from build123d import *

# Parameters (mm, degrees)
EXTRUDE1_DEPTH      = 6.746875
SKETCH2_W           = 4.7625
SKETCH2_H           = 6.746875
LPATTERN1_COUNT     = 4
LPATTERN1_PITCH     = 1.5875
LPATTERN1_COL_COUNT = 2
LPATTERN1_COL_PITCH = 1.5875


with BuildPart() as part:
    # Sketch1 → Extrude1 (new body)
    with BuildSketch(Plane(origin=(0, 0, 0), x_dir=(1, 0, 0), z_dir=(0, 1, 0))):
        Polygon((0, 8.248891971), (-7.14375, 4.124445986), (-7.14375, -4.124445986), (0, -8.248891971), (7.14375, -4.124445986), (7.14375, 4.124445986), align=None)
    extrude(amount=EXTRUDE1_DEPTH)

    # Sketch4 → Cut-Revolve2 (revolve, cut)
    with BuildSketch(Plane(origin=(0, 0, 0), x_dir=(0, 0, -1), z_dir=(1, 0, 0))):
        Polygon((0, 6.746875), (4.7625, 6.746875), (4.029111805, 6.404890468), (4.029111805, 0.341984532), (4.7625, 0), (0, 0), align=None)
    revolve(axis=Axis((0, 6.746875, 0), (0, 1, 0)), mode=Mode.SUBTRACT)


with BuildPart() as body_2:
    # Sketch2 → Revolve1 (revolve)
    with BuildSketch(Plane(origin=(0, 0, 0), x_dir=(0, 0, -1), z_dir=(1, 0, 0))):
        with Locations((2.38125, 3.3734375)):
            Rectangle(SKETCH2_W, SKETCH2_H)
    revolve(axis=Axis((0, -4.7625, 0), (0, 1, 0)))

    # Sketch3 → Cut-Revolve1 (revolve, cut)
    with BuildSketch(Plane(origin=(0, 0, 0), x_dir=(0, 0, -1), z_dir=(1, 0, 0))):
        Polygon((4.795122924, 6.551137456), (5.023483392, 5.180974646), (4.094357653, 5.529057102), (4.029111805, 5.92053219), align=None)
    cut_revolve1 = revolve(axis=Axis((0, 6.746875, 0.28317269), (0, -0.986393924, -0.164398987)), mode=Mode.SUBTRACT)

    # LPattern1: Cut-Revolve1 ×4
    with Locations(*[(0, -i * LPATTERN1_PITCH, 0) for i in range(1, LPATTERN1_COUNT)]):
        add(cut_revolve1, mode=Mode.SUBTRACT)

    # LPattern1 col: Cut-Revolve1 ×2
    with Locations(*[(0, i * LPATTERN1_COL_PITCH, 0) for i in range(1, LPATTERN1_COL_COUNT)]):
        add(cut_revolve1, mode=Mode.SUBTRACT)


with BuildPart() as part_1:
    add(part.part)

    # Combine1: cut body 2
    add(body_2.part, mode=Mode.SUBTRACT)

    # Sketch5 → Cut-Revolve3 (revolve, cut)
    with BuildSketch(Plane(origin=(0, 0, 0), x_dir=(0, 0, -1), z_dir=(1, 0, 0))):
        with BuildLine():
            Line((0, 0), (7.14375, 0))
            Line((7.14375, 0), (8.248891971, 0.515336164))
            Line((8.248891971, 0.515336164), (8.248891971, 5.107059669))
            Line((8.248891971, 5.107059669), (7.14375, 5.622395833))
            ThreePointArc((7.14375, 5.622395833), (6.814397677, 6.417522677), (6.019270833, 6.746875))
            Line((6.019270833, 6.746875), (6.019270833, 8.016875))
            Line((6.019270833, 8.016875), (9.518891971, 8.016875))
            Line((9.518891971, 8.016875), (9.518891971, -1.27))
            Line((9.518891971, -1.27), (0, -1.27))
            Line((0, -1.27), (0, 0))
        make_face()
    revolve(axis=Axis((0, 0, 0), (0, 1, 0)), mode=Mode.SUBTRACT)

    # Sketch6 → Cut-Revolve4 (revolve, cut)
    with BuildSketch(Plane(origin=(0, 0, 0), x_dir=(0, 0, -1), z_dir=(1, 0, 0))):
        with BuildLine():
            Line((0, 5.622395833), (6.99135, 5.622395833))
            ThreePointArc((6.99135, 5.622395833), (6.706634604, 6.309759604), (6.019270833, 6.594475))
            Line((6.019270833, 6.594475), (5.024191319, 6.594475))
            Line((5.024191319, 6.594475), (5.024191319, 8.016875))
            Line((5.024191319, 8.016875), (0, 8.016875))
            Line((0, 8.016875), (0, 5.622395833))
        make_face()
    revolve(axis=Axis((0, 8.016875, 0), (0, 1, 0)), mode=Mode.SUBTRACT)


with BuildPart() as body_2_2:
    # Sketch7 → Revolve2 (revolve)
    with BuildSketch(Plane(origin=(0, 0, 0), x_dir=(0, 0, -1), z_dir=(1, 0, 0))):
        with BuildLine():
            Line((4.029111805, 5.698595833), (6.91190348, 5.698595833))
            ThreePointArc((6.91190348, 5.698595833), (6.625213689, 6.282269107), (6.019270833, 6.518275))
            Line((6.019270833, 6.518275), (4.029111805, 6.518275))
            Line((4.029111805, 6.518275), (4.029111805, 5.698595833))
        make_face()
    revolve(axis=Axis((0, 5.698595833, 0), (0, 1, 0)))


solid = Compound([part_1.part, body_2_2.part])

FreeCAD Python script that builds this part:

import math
import FreeCAD as App
import Part
import Sketcher
Q = App.Units.Quantity

doc = App.newDocument("Part")
params = doc.addObject("Spreadsheet::Sheet", "Params")
for row, (alias, value) in enumerate([
    ("pad1_length", "0.265625 in"),
    ("sketch2_width", "0.265625 in"),
    ("sketch2_height", "0.1875 in"),
    ("groove_angle", "360 deg"),
    ("sketch3_width", "0.265625 in"),
    ("sketch3_height", "0.1875 in"),
    ("revolution_angle", "360 deg"),
    ("sketch4_length", "0.015625 in"),
    ("groove2_angle", "360 deg"),
    ("linearpattern_pitch", "0.0625 in"),
    ("linearpattern2_pitch", "0.0625 in"),
    ("sketch5_width", "0.05 in"),
    ("sketch5_height", "0.28125 in"),
    ("groove3_angle", "360 deg"),
    ("sketch6_width", "0.056 in"),
    ("groove4_angle", "360 deg"),
    ("revolution2_angle", "360 deg"),
], start=1):
    params.set(f"A{row}", alias)
    params.set(f"B{row}", "=" + value)
    params.setAlias(f"B{row}", alias)

body = doc.addObject("PartDesign::Body", "Body")

sketch1 = doc.addObject("Sketcher::SketchObject", "Sketch")
body.addObject(sketch1)
sketch1.AttachmentSupport = (doc.XZ_Plane, [""])
sketch1.MapMode = "FlatFace"
sketch1.addGeometry([
    Part.LineSegment(App.Vector(0, -8, 0), App.Vector(-7, -4, 0)),
    Part.LineSegment(App.Vector(-7, -4, 0), App.Vector(-7, 4, 0)),
    Part.LineSegment(App.Vector(-7, 4, 0), App.Vector(0, 8, 0)),
    Part.LineSegment(App.Vector(0, 8, 0), App.Vector(7, 4, 0)),
    Part.LineSegment(App.Vector(7, 4, 0), App.Vector(7, -4, 0)),
    Part.LineSegment(App.Vector(7, -4, 0), App.Vector(0, -8, 0)),
], False)
sketch1.addConstraint([
    Sketcher.Constraint("Coincident", 0, 2, 1, 1),
    Sketcher.Constraint("Coincident", 1, 2, 2, 1),
    Sketcher.Constraint("Coincident", 2, 2, 3, 1),
    Sketcher.Constraint("Coincident", 3, 2, 4, 1),
    Sketcher.Constraint("Coincident", 4, 2, 5, 1),
    Sketcher.Constraint("Coincident", 5, 2, 0, 1),
    Sketcher.Constraint("Vertical", 1),
    Sketcher.Constraint("Vertical", 4),
    Sketcher.Constraint("Symmetric", 0, 2, 3, 2, -1, 1),
    Sketcher.Constraint("Symmetric", 2, 2, 5, 2, -1, 1),
    Sketcher.Constraint("PointOnObject", 2, 2, -2),
    Sketcher.Constraint("Parallel", 2, 5),
    Sketcher.Constraint("Horizontal", 1, 2, 3, 2),
    Sketcher.Constraint("Angle", 0, Q("150 deg")),
    Sketcher.Constraint("DistanceX", 0, 2, -1, 1, Q("0.28125 in")),
    Sketcher.Constraint("DistanceY", 1, 1, 1, 2, 8.248892),
])
pad1 = doc.addObject("PartDesign::Pad", "Pad")
body.addObject(pad1)
pad1.Profile = sketch1
pad1.setExpression("Length", "Params.pad1_length")
pad1.Reversed = True

sketch2 = doc.addObject("Sketcher::SketchObject", "Sketch001")
body.addObject(sketch2)
sketch2.AttachmentSupport = (doc.YZ_Plane, [""])
sketch2.MapMode = "FlatFace"
sketch2.addGeometry([
    Part.LineSegment(App.Vector(6.7, -4.8, 0), App.Vector(6.7, 0, 0)),
    Part.LineSegment(App.Vector(6.7, 0, 0), App.Vector(0, 0, 0)),
    Part.LineSegment(App.Vector(0, 0, 0), App.Vector(0, -4.8, 0)),
    Part.LineSegment(App.Vector(0, -4.8, 0), App.Vector(0.3, -4, 0)),
    Part.LineSegment(App.Vector(0.3, -4, 0), App.Vector(6.4, -4, 0)),
    Part.LineSegment(App.Vector(6.4, -4, 0), App.Vector(6.7, -4.8, 0)),
], False)
sketch2.addConstraint([
    Sketcher.Constraint("Coincident", 0, 2, 1, 1),
    Sketcher.Constraint("Coincident", 1, 2, 2, 1),
    Sketcher.Constraint("Coincident", 2, 2, 3, 1),
    Sketcher.Constraint("Coincident", 3, 2, 4, 1),
    Sketcher.Constraint("Coincident", 4, 2, 5, 1),
    Sketcher.Constraint("Coincident", 5, 2, 0, 1),
    Sketcher.Constraint("Vertical", 0),
    Sketcher.Constraint("Horizontal", 1),
    Sketcher.Constraint("Vertical", 2),
    Sketcher.Constraint("Horizontal", 4),
    Sketcher.Constraint("Coincident", 1, 2, -1, 1),
    Sketcher.Constraint("Horizontal", 2, 2, 5, 2),
    Sketcher.Constraint("Equal", 3, 5),
    Sketcher.Constraint("Angle", 3, Q("65 deg")),
    Sketcher.Constraint("DistanceX", 1, 2, 1, 1, Q("0.265625 in")),
    Sketcher.Constraint("DistanceY", 0, 1, 0, 2, Q("0.1875 in")),
    Sketcher.Constraint("DistanceX", 4, 1, 4, 2, 6.062906),
])
sketch2.setExpression("Constraints[14]", "Params.sketch2_width")
sketch2.setExpression("Constraints[15]", "Params.sketch2_height")
groove = doc.addObject("PartDesign::Groove", "Groove")
body.addObject(groove)
groove.Profile = sketch2
groove.ReferenceAxis = (sketch2, ["H_Axis"])
groove.setExpression("Angle", "Params.groove_angle")
body2 = doc.addObject("PartDesign::Body", "Body001")

sketch3 = doc.addObject("Sketcher::SketchObject", "Sketch002")
body2.addObject(sketch3)
sketch3.AttachmentSupport = (doc.getObject("YZ_Plane001"), [""])
sketch3.MapMode = "FlatFace"
sketch3.addGeometry([
    Part.LineSegment(App.Vector(6.7, 0, 0), App.Vector(0, 0, 0)),
    Part.LineSegment(App.Vector(0, 0, 0), App.Vector(0, -4.8, 0)),
    Part.LineSegment(App.Vector(0, -4.8, 0), App.Vector(6.7, -4.8, 0)),
    Part.LineSegment(App.Vector(6.7, -4.8, 0), App.Vector(6.7, 0, 0)),
], False)
sketch3.addConstraint([
    Sketcher.Constraint("Coincident", 0, 2, 1, 1),
    Sketcher.Constraint("Coincident", 1, 2, 2, 1),
    Sketcher.Constraint("Coincident", 2, 2, 3, 1),
    Sketcher.Constraint("Coincident", 3, 2, 0, 1),
    Sketcher.Constraint("Horizontal", 0),
    Sketcher.Constraint("Vertical", 1),
    Sketcher.Constraint("Horizontal", 2),
    Sketcher.Constraint("Vertical", 3),
    Sketcher.Constraint("Coincident", 0, 2, -1, 1),
    Sketcher.Constraint("DistanceX", 0, 2, 0, 1, Q("0.265625 in")),
    Sketcher.Constraint("DistanceY", 1, 2, 1, 1, Q("0.1875 in")),
])
sketch3.setExpression("Constraints[9]", "Params.sketch3_width")
sketch3.setExpression("Constraints[10]", "Params.sketch3_height")
revolution = doc.addObject("PartDesign::Revolution", "Revolution")
body2.addObject(revolution)
revolution.Profile = sketch3
revolution.ReferenceAxis = (sketch3, ["H_Axis"])
revolution.setExpression("Angle", "Params.revolution_angle")

sketch4 = doc.addObject("Sketcher::SketchObject", "Sketch003")
body2.addObject(sketch4)
sketch4.AttachmentSupport = (doc.getObject("YZ_Plane001"), [""])
sketch4.MapMode = "FlatFace"
sketch4.addGeometry([
    Part.LineSegment(App.Vector(5.18, -5.02, 0), App.Vector(6.55, -4.8, 0)),
    Part.LineSegment(App.Vector(6.55, -4.8, 0), App.Vector(5.92, -4.03, 0)),
    Part.LineSegment(App.Vector(5.92, -4.03, 0), App.Vector(5.53, -4.09, 0)),
    Part.LineSegment(App.Vector(5.53, -4.09, 0), App.Vector(5.18, -5.02, 0)),
], False)
sketch4.addGeometry(Part.LineSegment(App.Vector(5.73, 0.11, 0), App.Vector(4.36, -0.11, 0)), True)
sketch4.addConstraint([
    Sketcher.Constraint("Coincident", 0, 2, 1, 1),
    Sketcher.Constraint("Coincident", 1, 2, 2, 1),
    Sketcher.Constraint("Coincident", 2, 2, 3, 1),
    Sketcher.Constraint("Coincident", 3, 2, 0, 1),
    Sketcher.Constraint("Parallel", 0, 2),
    Sketcher.Constraint("Parallel", 2, 4),
    Sketcher.Constraint("Equal", 1, 3),
    Sketcher.Constraint("Equal", 0, 4),
    Sketcher.Constraint("Distance", 2, Q("0.015625 in")),
    Sketcher.Constraint("DistanceY", 2, 2, 4, 2, Q("0.1566999 in")),
    Sketcher.Constraint("DistanceX", 4, 2, 2, 2, 1.1663),
    Sketcher.Constraint("DistanceY", 1, 2, -1, 1, 4.029112),
    Sketcher.Constraint("DistanceX", -1, 1, 4, 1, 5.73292),
    Sketcher.Constraint("DistanceY", -1, 1, 4, 1, 0.11418),
    Sketcher.Constraint("DistanceY", 4, 2, -1, 1, 0.11418),
    Sketcher.Constraint("DistanceY", 0, 2, 1, 2, 0.766011),
])
sketch4.setExpression("Constraints[8]", "Params.sketch4_length")
groove2 = doc.addObject("PartDesign::Groove", "Groove001")
body2.addObject(groove2)
groove2.Profile = sketch4
groove2.ReferenceAxis = (sketch4, ["Axis0"])
groove2.setExpression("Angle", "Params.groove2_angle")
doc.recompute()

linearpattern = doc.addObject("PartDesign::LinearPattern", "LinearPattern")
body2.addObject(linearpattern)
linearpattern.Originals = [groove2]
linearpattern.Direction = (doc.getObject("Y_Axis001"), [""])
linearpattern.Mode = "offset"
linearpattern.setExpression("Offset", "Params.linearpattern_pitch")
linearpattern.Occurrences = 4
linearpattern.Reversed = True
body2.Tip = linearpattern
doc.recompute()

linearpattern2 = doc.addObject("PartDesign::LinearPattern", "LinearPattern001")
body2.addObject(linearpattern2)
linearpattern2.Originals = [groove2]
linearpattern2.Direction = (doc.getObject("Y_Axis001"), [""])
linearpattern2.Mode = "offset"
linearpattern2.setExpression("Offset", "Params.linearpattern2_pitch")
linearpattern2.Occurrences = 2
body2.Tip = linearpattern2
doc.recompute()

boolean = doc.addObject("PartDesign::Boolean", "Boolean")
body.addObject(boolean)
boolean.Type = "Cut"
boolean.addObjects([body2])

sketch5 = doc.addObject("Sketcher::SketchObject", "Sketch004")
body.addObject(sketch5)
sketch5.AttachmentSupport = (doc.YZ_Plane, [""])
sketch5.MapMode = "FlatFace"
sketch5.addGeometry([
    Part.LineSegment(App.Vector(0, -7.1, 0), App.Vector(0, 0, 0)),
    Part.LineSegment(App.Vector(0, 0, 0), App.Vector(-1.3, 0, 0)),
    Part.LineSegment(App.Vector(-1.3, 0, 0), App.Vector(-1.3, -9.5, 0)),
    Part.LineSegment(App.Vector(-1.3, -9.5, 0), App.Vector(8, -9.5, 0)),
    Part.LineSegment(App.Vector(8, -9.5, 0), App.Vector(8, -6, 0)),
    Part.LineSegment(App.Vector(8, -6, 0), App.Vector(6.7, -6, 0)),
    Part.ArcOfCircle(Part.Circle(App.Vector(5.6, -6, 0), App.Vector(0, 0, 1), 1.1), math.radians(-90), math.radians(0)),
    Part.LineSegment(App.Vector(5.6, -7.1, 0), App.Vector(5.1, -8.2, 0)),
    Part.LineSegment(App.Vector(5.1, -8.2, 0), App.Vector(0.5, -8.2, 0)),
    Part.LineSegment(App.Vector(0.5, -8.2, 0), App.Vector(0, -7.1, 0)),
], False)
sketch5.addConstraint([
    Sketcher.Constraint("Coincident", 0, 2, 1, 1),
    Sketcher.Constraint("Coincident", 1, 2, 2, 1),
    Sketcher.Constraint("Coincident", 2, 2, 3, 1),
    Sketcher.Constraint("Coincident", 3, 2, 4, 1),
    Sketcher.Constraint("Coincident", 4, 2, 5, 1),
    Sketcher.Constraint("Coincident", 5, 2, 6, 2),
    Sketcher.Constraint("Coincident", 6, 1, 7, 1),
    Sketcher.Constraint("Coincident", 7, 2, 8, 1),
    Sketcher.Constraint("Coincident", 8, 2, 9, 1),
    Sketcher.Constraint("Coincident", 9, 2, 0, 1),
    Sketcher.Constraint("Vertical", 0),
    Sketcher.Constraint("Horizontal", 1),
    Sketcher.Constraint("Vertical", 2),
    Sketcher.Constraint("Horizontal", 3),
    Sketcher.Constraint("Vertical", 4),
    Sketcher.Constraint("Horizontal", 5),
    Sketcher.Constraint("Horizontal", 8),
    Sketcher.Constraint("Coincident", 0, 2, -1, 1),
    Sketcher.Constraint("Horizontal", 6, 3, 4, 2),
    Sketcher.Constraint("Horizontal", 6, 1, 9, 2),
    Sketcher.Constraint("Equal", 1, 5),
    Sketcher.Constraint("Equal", 7, 9),
    Sketcher.Constraint("Angle", 7, Q("-115 deg")),
    Sketcher.Constraint("DistanceX", 1, 2, 1, 1, Q("0.05 in")),
    Sketcher.Constraint("DistanceY", 0, 1, 0, 2, Q("0.28125 in")),
    Sketcher.Constraint("DistanceY", 3, 2, 7, 2, Q("0.05 in")),
    Sketcher.Constraint("DistanceX", -1, 1, 5, 2, Q("0.265625 in")),
    Sketcher.Constraint("Radius", 6, 1.124479),
    Sketcher.Constraint("DistanceY", 2, 2, 2, 1, 9.518892),
    Sketcher.Constraint("DistanceX", 8, 2, 8, 1, 4.591724),
])
sketch5.setExpression("Constraints[23]", "Params.sketch5_width")
sketch5.setExpression("Constraints[24]", "Params.sketch5_height")
groove3 = doc.addObject("PartDesign::Groove", "Groove002")
body.addObject(groove3)
groove3.Profile = sketch5
groove3.ReferenceAxis = (sketch5, ["H_Axis"])
groove3.setExpression("Angle", "Params.groove3_angle")

sketch6 = doc.addObject("Sketcher::SketchObject", "Sketch005")
body.addObject(sketch6)
sketch6.AttachmentSupport = (doc.YZ_Plane, [""])
sketch6.MapMode = "FlatFace"
sketch6.addGeometry([
    Part.LineSegment(App.Vector(5.6, 0, 0), App.Vector(5.6, -7, 0)),
    Part.ArcOfCircle(Part.Circle(App.Vector(5.6, -6, 0), App.Vector(0, 0, 1), 1), math.radians(-90), math.radians(0)),
    Part.LineSegment(App.Vector(6.6, -6, 0), App.Vector(6.6, -5, 0)),
    Part.LineSegment(App.Vector(6.6, -5, 0), App.Vector(8, -5, 0)),
    Part.LineSegment(App.Vector(8, -5, 0), App.Vector(8, 0, 0)),
    Part.LineSegment(App.Vector(8, 0, 0), App.Vector(5.6, 0, 0)),
], False)
sketch6.addConstraint([
    Sketcher.Constraint("Coincident", 0, 2, 1, 1),
    Sketcher.Constraint("Tangent", 1, 2, 2, 1),
    Sketcher.Constraint("Coincident", 2, 2, 3, 1),
    Sketcher.Constraint("Coincident", 3, 2, 4, 1),
    Sketcher.Constraint("Coincident", 4, 2, 5, 1),
    Sketcher.Constraint("Coincident", 5, 2, 0, 1),
    Sketcher.Constraint("Vertical", 0),
    Sketcher.Constraint("Vertical", 2),
    Sketcher.Constraint("Horizontal", 3),
    Sketcher.Constraint("Vertical", 4),
    Sketcher.Constraint("Horizontal", 5),
    Sketcher.Constraint("PointOnObject", 4, 2, -1),
    Sketcher.Constraint("Vertical", 1, 3, 0, 2),
    Sketcher.Constraint("DistanceX", 3, 1, 3, 2, Q("0.056 in")),
    Sketcher.Constraint("Radius", 1, 0.972079),
    Sketcher.Constraint("DistanceY", 0, 2, 0, 1, 6.99135),
    Sketcher.Constraint("DistanceY", 2, 1, 2, 2, 0.99508),
    Sketcher.Constraint("DistanceX", -1, 1, 1, 3, 5.622396),
])
sketch6.setExpression("Constraints[13]", "Params.sketch6_width")
groove4 = doc.addObject("PartDesign::Groove", "Groove003")
body.addObject(groove4)
groove4.Profile = sketch6
groove4.ReferenceAxis = (sketch6, ["H_Axis"])
groove4.setExpression("Angle", "Params.groove4_angle")
body3 = doc.addObject("PartDesign::Body", "Body002")

sketch7 = doc.addObject("Sketcher::SketchObject", "Sketch006")
body3.addObject(sketch7)
sketch7.AttachmentSupport = (doc.getObject("YZ_Plane002"), [""])
sketch7.MapMode = "FlatFace"
sketch7.addGeometry([
    Part.LineSegment(App.Vector(5.7, -4, 0), App.Vector(5.7, -6.9, 0)),
    Part.ArcOfCircle(Part.Circle(App.Vector(5.6, -6, 0), App.Vector(0, 0, 1), 0.9), math.radians(-85), math.radians(0)),
    Part.LineSegment(App.Vector(6.5, -6, 0), App.Vector(6.5, -4, 0)),
    Part.LineSegment(App.Vector(6.5, -4, 0), App.Vector(5.7, -4, 0)),
], False)
sketch7.addConstraint([
    Sketcher.Constraint("Coincident", 0, 2, 1, 1),
    Sketcher.Constraint("Tangent", 1, 2, 2, 1),
    Sketcher.Constraint("Coincident", 2, 2, 3, 1),
    Sketcher.Constraint("Coincident", 3, 2, 0, 1),
    Sketcher.Constraint("Vertical", 0),
    Sketcher.Constraint("Vertical", 2),
    Sketcher.Constraint("Horizontal", 3),
    Sketcher.Constraint("Radius", 1, 0.895879),
    Sketcher.Constraint("DistanceX", 1, 3, 0, 2, Q("0.003 in")),
    Sketcher.Constraint("DistanceY", 0, 2, 0, 1, 2.882792),
    Sketcher.Constraint("DistanceY", 1, 3, -1, 1, 6.019271),
    Sketcher.Constraint("DistanceX", -1, 1, 1, 3, 5.622396),
])
revolution2 = doc.addObject("PartDesign::Revolution", "Revolution001")
body3.addObject(revolution2)
revolution2.Profile = sketch7
revolution2.ReferenceAxis = (sketch7, ["H_Axis"])
revolution2.setExpression("Angle", "Params.revolution2_angle")

doc.recompute()
